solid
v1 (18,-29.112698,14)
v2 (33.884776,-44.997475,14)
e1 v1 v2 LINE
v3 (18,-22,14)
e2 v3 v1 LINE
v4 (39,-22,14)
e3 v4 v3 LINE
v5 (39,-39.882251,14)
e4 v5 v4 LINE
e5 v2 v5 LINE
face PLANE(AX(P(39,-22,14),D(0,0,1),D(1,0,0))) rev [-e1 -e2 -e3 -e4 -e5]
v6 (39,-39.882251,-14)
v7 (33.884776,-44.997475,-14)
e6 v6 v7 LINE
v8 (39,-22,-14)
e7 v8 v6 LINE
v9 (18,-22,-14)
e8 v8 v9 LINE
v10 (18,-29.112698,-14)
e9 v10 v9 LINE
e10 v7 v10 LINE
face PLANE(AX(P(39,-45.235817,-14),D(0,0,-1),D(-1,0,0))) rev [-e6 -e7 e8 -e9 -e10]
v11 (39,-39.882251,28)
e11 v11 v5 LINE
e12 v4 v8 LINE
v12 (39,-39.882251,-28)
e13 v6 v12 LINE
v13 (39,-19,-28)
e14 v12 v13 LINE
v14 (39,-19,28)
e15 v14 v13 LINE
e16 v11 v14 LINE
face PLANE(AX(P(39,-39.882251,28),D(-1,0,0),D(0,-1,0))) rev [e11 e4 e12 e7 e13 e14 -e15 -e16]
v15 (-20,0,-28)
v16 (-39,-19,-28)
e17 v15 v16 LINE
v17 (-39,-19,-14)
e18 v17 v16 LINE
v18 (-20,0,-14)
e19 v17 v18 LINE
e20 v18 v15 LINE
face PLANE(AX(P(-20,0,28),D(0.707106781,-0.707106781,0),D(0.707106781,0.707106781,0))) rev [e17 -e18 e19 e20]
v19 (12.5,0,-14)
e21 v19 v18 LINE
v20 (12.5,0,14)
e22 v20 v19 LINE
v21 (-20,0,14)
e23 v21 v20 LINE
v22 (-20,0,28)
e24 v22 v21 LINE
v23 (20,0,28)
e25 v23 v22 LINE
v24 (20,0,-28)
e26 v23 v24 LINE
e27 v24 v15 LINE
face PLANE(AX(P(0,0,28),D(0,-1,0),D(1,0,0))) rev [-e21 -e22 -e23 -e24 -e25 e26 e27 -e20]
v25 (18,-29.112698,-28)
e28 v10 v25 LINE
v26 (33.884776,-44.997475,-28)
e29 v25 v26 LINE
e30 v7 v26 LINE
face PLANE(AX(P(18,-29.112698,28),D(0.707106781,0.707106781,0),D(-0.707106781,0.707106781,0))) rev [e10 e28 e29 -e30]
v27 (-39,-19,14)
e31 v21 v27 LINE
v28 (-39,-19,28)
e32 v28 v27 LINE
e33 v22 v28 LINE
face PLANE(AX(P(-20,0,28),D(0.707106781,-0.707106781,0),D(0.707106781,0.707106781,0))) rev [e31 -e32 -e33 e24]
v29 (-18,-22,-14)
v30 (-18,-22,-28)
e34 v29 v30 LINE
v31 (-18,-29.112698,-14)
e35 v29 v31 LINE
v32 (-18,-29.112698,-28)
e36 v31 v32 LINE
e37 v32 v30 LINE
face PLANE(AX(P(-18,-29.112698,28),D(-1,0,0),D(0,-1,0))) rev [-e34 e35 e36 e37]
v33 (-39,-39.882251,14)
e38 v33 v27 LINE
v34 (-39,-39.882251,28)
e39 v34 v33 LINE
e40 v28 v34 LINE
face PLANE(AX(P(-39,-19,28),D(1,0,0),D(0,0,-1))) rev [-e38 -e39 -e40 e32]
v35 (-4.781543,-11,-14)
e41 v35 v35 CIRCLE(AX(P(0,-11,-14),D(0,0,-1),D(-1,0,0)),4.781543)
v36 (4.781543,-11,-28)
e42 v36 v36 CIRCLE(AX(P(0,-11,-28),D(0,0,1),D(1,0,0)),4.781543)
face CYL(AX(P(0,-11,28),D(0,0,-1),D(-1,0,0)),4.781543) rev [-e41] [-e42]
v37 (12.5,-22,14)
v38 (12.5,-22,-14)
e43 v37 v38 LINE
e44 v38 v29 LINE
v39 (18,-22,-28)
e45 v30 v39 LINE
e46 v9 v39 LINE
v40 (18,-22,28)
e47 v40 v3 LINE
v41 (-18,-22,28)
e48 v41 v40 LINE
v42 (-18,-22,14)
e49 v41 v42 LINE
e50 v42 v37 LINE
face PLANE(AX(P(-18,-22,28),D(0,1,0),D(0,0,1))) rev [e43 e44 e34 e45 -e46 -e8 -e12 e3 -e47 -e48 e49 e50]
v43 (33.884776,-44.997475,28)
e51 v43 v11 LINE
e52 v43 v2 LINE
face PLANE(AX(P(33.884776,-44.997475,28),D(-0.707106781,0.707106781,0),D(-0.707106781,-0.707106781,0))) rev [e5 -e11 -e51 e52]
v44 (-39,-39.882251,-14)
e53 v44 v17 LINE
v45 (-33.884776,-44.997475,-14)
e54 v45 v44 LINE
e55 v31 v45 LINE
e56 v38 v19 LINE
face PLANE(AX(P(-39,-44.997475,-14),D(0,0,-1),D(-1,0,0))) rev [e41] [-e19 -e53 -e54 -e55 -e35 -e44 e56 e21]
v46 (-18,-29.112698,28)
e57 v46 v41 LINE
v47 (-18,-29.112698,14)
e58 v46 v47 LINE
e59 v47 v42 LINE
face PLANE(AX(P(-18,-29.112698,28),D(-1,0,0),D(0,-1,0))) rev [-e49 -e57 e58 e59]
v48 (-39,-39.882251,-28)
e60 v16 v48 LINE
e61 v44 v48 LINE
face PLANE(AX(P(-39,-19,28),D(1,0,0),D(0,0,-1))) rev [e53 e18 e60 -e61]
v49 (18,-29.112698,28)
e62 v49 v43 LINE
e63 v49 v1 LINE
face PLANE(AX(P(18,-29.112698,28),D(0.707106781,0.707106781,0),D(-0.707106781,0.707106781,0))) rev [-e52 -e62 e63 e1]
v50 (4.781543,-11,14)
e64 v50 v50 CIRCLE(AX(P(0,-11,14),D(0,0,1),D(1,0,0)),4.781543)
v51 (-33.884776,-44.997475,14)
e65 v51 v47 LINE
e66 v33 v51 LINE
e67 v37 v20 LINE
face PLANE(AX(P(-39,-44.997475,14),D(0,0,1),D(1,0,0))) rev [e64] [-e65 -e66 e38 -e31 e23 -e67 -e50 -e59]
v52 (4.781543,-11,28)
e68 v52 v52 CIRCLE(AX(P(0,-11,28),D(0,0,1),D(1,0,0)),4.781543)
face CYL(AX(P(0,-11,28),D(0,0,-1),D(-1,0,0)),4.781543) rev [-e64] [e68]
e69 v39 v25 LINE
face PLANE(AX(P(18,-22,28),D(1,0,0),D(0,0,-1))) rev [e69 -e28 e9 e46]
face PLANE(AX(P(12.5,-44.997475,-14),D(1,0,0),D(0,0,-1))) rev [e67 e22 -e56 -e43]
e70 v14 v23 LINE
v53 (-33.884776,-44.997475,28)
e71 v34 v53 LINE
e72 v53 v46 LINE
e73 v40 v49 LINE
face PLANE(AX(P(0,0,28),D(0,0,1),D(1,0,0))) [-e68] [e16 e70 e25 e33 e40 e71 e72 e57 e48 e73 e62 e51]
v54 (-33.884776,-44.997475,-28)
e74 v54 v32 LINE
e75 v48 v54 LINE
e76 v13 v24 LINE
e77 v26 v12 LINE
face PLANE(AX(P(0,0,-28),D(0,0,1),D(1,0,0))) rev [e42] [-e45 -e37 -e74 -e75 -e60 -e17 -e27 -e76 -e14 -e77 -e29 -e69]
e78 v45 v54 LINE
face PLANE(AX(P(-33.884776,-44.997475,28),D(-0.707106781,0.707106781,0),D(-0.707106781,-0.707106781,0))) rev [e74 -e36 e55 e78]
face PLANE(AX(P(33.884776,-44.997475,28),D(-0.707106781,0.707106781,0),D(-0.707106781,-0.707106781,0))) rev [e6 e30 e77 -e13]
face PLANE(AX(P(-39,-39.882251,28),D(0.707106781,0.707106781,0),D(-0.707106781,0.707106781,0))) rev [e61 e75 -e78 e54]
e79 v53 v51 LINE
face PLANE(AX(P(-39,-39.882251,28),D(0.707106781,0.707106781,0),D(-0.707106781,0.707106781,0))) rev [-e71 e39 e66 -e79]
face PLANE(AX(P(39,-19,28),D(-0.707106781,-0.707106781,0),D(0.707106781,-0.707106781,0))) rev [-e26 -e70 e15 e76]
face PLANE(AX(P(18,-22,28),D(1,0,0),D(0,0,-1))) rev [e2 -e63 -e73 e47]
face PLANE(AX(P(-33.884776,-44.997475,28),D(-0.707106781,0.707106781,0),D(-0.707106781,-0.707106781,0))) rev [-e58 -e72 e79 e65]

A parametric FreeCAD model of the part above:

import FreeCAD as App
import Part
import Sketcher
from FreeCAD import Vector
Q = App.Units.Quantity


def add_polygon(sketch, points):
    """Adds a closed chain of lines whose ends are joined by coincident constraints."""
    first, n = sketch.GeometryCount, len(points)
    for a, b in zip(points, points[1:] + points[:1]):
        sketch.addGeometry(Part.LineSegment(App.Vector(*a, 0), App.Vector(*b, 0)), False)
    for i in range(n):
        sketch.addConstraint(Sketcher.Constraint("Coincident", first + i, 2, first + (i + 1) % n, 1))

doc = App.newDocument("Part")
params = doc.addObject("Spreadsheet::Sheet", "Params")
for row, (alias, value) in enumerate([
    ("sketch1_width", "36 mm"),
    ("sketch1_width2", "40 mm"),
    ("pad1_length", "56 mm"),
    ("sketch2_height", "28 mm"),
    ("sketch2_width", "51.5 mm"),
    ("sketch3_height", "28 mm"),
], start=1):
    params.set(f"A{row}", alias)
    params.set(f"B{row}", "=" + value)
    params.setAlias(f"B{row}", alias)

body = doc.addObject("PartDesign::Body", "Body")

# Sketch on XY plane
sketch1 = body.newObject("Sketcher::SketchObject", "Sketch")
sketch1.AttachmentSupport = (doc.getObject("XY_Plane"), [""])
sketch1.MapMode = "FlatFace"
add_polygon(sketch1, [(-20, 0), (-39, -19), (-39, -39.882251), (-33.884776, -44.997475), (-18, -29.112698), (-18, -22), (18, -22), (18, -29.112698), (33.884776, -44.997475), (39, -39.882251), (39, -19), (20, 0)])  # lines 0-11
sketch1.addGeometry(Part.Circle(Vector(0, -11, 0), Vector(0, 0, 1), 4.781543), False)  # 12
sketch1.addConstraint([
    Sketcher.Constraint("Vertical", 1),
    Sketcher.Constraint("Vertical", 4),
    Sketcher.Constraint("Horizontal", 5),
    Sketcher.Constraint("Vertical", 6),
    Sketcher.Constraint("Vertical", 9),
    Sketcher.Constraint("Horizontal", 11),
    Sketcher.Constraint("Symmetric", 10, 2, 11, 2, -1, 1),
    Sketcher.Constraint("Symmetric", 3, 2, 6, 2, -2),
    Sketcher.Constraint("Symmetric", 2, 2, 7, 2, -2),
    Sketcher.Constraint("Symmetric", 1, 2, 8, 2, -2),
    Sketcher.Constraint("PointOnObject", 12, 3, -2),
    Sketcher.Constraint("Perpendicular", 0, 2),
    Sketcher.Constraint("Perpendicular", 2, 3),
    Sketcher.Constraint("Perpendicular", 3, 7),
    Sketcher.Constraint("Perpendicular", 8, 10),
    Sketcher.Constraint("DistanceX", 5, 1, 5, 2, Q("36 mm")),
    Sketcher.Constraint("DistanceX", 11, 2, 11, 1, Q("40 mm")),
    Sketcher.Constraint("DistanceY", 12, 3, -1, 1, Q("11 mm")),
    Sketcher.Constraint("DistanceX", 0, 2, -1, 1, Q("39 mm")),
    Sketcher.Constraint("DistanceY", 4, 2, -1, 1, Q("22 mm")),
    Sketcher.Constraint("Diameter", 12, Q("9.563086 mm")),
    Sketcher.Constraint("DistanceY", 4, 1, 4, 2, Q("7.112698 mm")),
    Sketcher.Constraint("DistanceY", 1, 2, 1, 1, Q("20.882251 mm")),
])
sketch1.setExpression("Constraints[27]", "Params.sketch1_width")
sketch1.setExpression("Constraints[28]", "Params.sketch1_width2")
pad1 = body.newObject("PartDesign::Pad", "Pad")
pad1.Profile = sketch1
pad1.setExpression("Length", "Params.pad1_length")
pad1.Midplane = True

# Sketch on XZ plane
sketch2 = body.newObject("Sketcher::SketchObject", "Sketch001")
sketch2.AttachmentSupport = (doc.getObject("XZ_Plane"), [""])
sketch2.MapMode = "FlatFace"
add_polygon(sketch2, [(-39, -14), (-39, 14), (12.5, 14), (12.5, -14)])  # lines 0-3
sketch2.addConstraint([
    Sketcher.Constraint("Vertical", 0),
    Sketcher.Constraint("Horizontal", 1),
    Sketcher.Constraint("Vertical", 2),
    Sketcher.Constraint("Horizontal", 3),
    Sketcher.Constraint("DistanceY", 0, 1, 0, 2, Q("28 mm")),
    Sketcher.Constraint("DistanceX", 1, 1, 1, 2, Q("51.5 mm")),
    Sketcher.Constraint("DistanceX", 0, 2, -1, 1, Q("39 mm")),
    Sketcher.Constraint("DistanceY", -1, 1, 0, 2, Q("14 mm")),
])
sketch2.setExpression("Constraints[8]", "Params.sketch2_height")
sketch2.setExpression("Constraints[9]", "Params.sketch2_width")
pocket1 = body.newObject("PartDesign::Pocket", "Pocket")
pocket1.Profile = sketch2
pocket1.Type = "ThroughAll"
pocket1.Reversed = True

# Sketch on YZ plane
sketch3 = body.newObject("Sketcher::SketchObject", "Sketch002")
sketch3.AttachmentSupport = (doc.getObject("YZ_Plane"), [""])
sketch3.MapMode = "FlatFace"
sketch3.AttachmentOffset = App.Placement(Vector(0, 0, 12.5), App.Rotation())
add_polygon(sketch3, [(-22, -14), (-45.235817, -14), (-45.235817, 14), (-22, 14)])  # lines 0-3
sketch3.addConstraint([
    Sketcher.Constraint("Horizontal", 0),
    Sketcher.Constraint("Vertical", 1),
    Sketcher.Constraint("Horizontal", 2),
    Sketcher.Constraint("Vertical", 3),
    Sketcher.Constraint("DistanceY", 1, 1, 1, 2, Q("28 mm")),
    Sketcher.Constraint("DistanceY", 0, 2, -1, 1, Q("14 mm")),
    Sketcher.Constraint("DistanceX", 2, 2, -1, 1, Q("22 mm")),
    Sketcher.Constraint("DistanceX", 0, 2, 0, 1, Q("23.235817 mm")),
])
sketch3.setExpression("Constraints[8]", "Params.sketch3_height")
pocket2 = body.newObject("PartDesign::Pocket", "Pocket001")
pocket2.Profile = sketch3
pocket2.Type = "ThroughAll"
pocket2.Reversed = True

doc.recompute()
